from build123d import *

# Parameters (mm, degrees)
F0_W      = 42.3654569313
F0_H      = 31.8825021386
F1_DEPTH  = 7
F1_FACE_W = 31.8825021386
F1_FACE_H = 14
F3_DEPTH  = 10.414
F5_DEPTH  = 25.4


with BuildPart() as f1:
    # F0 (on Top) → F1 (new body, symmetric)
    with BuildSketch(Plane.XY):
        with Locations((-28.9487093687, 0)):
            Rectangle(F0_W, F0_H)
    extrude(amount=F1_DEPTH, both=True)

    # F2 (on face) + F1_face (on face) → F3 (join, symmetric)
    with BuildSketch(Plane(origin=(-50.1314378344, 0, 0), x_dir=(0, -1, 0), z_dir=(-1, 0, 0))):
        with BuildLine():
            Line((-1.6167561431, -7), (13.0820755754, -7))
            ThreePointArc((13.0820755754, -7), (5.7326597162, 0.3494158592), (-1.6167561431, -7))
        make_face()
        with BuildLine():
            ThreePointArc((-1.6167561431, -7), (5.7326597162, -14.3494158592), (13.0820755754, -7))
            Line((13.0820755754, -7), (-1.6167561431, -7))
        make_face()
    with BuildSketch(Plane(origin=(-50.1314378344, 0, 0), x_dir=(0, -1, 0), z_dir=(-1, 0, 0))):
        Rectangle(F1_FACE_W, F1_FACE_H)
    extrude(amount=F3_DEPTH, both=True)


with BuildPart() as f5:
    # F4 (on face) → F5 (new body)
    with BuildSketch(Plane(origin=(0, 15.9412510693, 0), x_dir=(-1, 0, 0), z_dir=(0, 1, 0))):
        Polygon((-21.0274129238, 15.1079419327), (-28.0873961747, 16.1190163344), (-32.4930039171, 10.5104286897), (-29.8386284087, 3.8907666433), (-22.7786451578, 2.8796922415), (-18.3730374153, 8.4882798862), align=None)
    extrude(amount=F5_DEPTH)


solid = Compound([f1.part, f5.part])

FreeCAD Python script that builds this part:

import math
import FreeCAD as App
import Part
import Sketcher

V = App.Vector
Q = App.Units.Quantity


def add_polygon(sketch, points):
    """Adds a closed chain of lines whose ends are joined by coincident constraints."""
    first, n = sketch.GeometryCount, len(points)
    for a, b in zip(points, points[1:] + points[:1]):
        sketch.addGeometry(Part.LineSegment(App.Vector(*a, 0), App.Vector(*b, 0)), False)
    for i in range(n):
        sketch.addConstraint(Sketcher.Constraint("Coincident", first + i, 2, first + (i + 1) % n, 1))

doc = App.newDocument("Part")
body = doc.addObject("PartDesign::Body", "Body")

# Sketch on XY plane
sketch1 = body.newObject("Sketcher::SketchObject", "Sketch")
sketch1.AttachmentSupport = (doc.getObject("XY_Plane"), [""])
sketch1.MapMode = "FlatFace"
add_polygon(sketch1, [(-50, 16), (-50, -16), (-8, -16), (-8, 16)])  # lines 0-3
sketch1.addConstraint([
    Sketcher.Constraint("Vertical", 0),
    Sketcher.Constraint("Horizontal", 1),
    Sketcher.Constraint("Vertical", 2),
    Sketcher.Constraint("Horizontal", 3),
    Sketcher.Constraint("DistanceX", 1, 1, 1, 2, Q("42.365457 mm")),
    Sketcher.Constraint("DistanceY", 0, 2, 0, 1, Q("31.882502 mm")),
    Sketcher.Constraint("DistanceY", 0, 2, -1, 1, Q("15.941251 mm")),
    Sketcher.Constraint("DistanceX", 1, 2, -1, 1, Q("7.765981 mm")),
])
pad1 = body.newObject("PartDesign::Pad", "Pad")
pad1.Profile = sketch1
pad1.Length = 14
pad1.Midplane = True

# Sketch on YZ plane
sketch2 = body.newObject("Sketcher::SketchObject", "Sketch001")
sketch2.AttachmentSupport = (doc.getObject("YZ_Plane"), [""])
sketch2.MapMode = "FlatFace"
sketch2.AttachmentOffset = App.Placement(V(0, 0, -50.131438), App.Rotation())
sketch2.addGeometry([
    Part.ArcOfCircle(Part.Circle(V(-5.7, -7, 0), V(0, 0, 1), 7.3), math.radians(180), math.radians(360)),  # 0
    Part.LineSegment(V(-13.1, -7, 0), V(-15.9, -7, 0)),  # 1
    Part.LineSegment(V(-15.9, -7, 0), V(-15.9, 7, 0)),  # 2
    Part.LineSegment(V(-15.9, 7, 0), V(15.9, 7, 0)),  # 3
    Part.LineSegment(V(15.9, 7, 0), V(15.9, -7, 0)),  # 4
    Part.LineSegment(V(15.9, -7, 0), V(1.6, -7, 0)),  # 5
], False)
sketch2.addConstraint([
    Sketcher.Constraint("Coincident", 0, 1, 1, 1),
    Sketcher.Constraint("Coincident", 1, 2, 2, 1),
    Sketcher.Constraint("Coincident", 2, 2, 3, 1),
    Sketcher.Constraint("Coincident", 3, 2, 4, 1),
    Sketcher.Constraint("Coincident", 4, 2, 5, 1),
    Sketcher.Constraint("Coincident", 5, 2, 0, 2),
    Sketcher.Constraint("Horizontal", 1),
    Sketcher.Constraint("Vertical", 2),
    Sketcher.Constraint("Horizontal", 3),
    Sketcher.Constraint("Vertical", 4),
    Sketcher.Constraint("Horizontal", 5),
    Sketcher.Constraint("Symmetric", 1, 2, 3, 2, -1, 1),
    Sketcher.Constraint("Horizontal", 1, 2, 4, 2),
    Sketcher.Constraint("DistanceY", 2, 1, 2, 2, Q("14 mm")),
    Sketcher.Constraint("DistanceY", 0, 3, -1, 1, Q("7 mm")),
    Sketcher.Constraint("Radius", 0, Q("7.349416 mm")),
    Sketcher.Constraint("DistanceX", 1, 2, 1, 1, Q("2.859175 mm")),
    Sketcher.Constraint("DistanceX", 3, 1, 3, 2, Q("31.882502 mm")),
])
pad2 = body.newObject("PartDesign::Pad", "Pad001")
pad2.Profile = sketch2
pad2.Length = 20.828
pad2.Midplane = True
body2 = doc.addObject("PartDesign::Body", "Body001")

# Sketch on XZ plane
sketch3 = body2.newObject("Sketcher::SketchObject", "Sketch002")
sketch3.AttachmentSupport = (doc.getObject("XZ_Plane001"), [""])
sketch3.MapMode = "FlatFace"
sketch3.AttachmentOffset = App.Placement(V(0, 0, -15.941251), App.Rotation())
add_polygon(sketch3, [(21, 15), (28, 16), (32, 11), (30, 4), (23, 3), (18, 8)])  # lines 0-5
sketch3.addConstraint([
    Sketcher.Constraint("Parallel", 0, 3),
    Sketcher.Constraint("Parallel", 1, 4),
    Sketcher.Constraint("Parallel", 2, 5),
    Sketcher.Constraint("Equal", 0, 1),
    Sketcher.Constraint("Equal", 1, 2),
    Sketcher.Constraint("Equal", 2, 3),
    Sketcher.Constraint("DistanceY", -1, 1, 1, 2, Q("10.510429 mm")),
    Sketcher.Constraint("DistanceX", -1, 1, 2, 2, Q("29.838628 mm")),
    Sketcher.Constraint("DistanceY", -1, 1, 4, 2, Q("8.48828 mm")),
    Sketcher.Constraint("DistanceY", -1, 1, 5, 2, Q("15.107942 mm")),
    Sketcher.Constraint("DistanceY", 2, 2, 0, 2, Q("12.22825 mm")),
    Sketcher.Constraint("DistanceX", 3, 2, 1, 2, Q("9.714359 mm")),
])
pad3 = body2.newObject("PartDesign::Pad", "Pad002")
pad3.Profile = sketch3
pad3.Length = 25.4
pad3.Reversed = True

doc.recompute()
